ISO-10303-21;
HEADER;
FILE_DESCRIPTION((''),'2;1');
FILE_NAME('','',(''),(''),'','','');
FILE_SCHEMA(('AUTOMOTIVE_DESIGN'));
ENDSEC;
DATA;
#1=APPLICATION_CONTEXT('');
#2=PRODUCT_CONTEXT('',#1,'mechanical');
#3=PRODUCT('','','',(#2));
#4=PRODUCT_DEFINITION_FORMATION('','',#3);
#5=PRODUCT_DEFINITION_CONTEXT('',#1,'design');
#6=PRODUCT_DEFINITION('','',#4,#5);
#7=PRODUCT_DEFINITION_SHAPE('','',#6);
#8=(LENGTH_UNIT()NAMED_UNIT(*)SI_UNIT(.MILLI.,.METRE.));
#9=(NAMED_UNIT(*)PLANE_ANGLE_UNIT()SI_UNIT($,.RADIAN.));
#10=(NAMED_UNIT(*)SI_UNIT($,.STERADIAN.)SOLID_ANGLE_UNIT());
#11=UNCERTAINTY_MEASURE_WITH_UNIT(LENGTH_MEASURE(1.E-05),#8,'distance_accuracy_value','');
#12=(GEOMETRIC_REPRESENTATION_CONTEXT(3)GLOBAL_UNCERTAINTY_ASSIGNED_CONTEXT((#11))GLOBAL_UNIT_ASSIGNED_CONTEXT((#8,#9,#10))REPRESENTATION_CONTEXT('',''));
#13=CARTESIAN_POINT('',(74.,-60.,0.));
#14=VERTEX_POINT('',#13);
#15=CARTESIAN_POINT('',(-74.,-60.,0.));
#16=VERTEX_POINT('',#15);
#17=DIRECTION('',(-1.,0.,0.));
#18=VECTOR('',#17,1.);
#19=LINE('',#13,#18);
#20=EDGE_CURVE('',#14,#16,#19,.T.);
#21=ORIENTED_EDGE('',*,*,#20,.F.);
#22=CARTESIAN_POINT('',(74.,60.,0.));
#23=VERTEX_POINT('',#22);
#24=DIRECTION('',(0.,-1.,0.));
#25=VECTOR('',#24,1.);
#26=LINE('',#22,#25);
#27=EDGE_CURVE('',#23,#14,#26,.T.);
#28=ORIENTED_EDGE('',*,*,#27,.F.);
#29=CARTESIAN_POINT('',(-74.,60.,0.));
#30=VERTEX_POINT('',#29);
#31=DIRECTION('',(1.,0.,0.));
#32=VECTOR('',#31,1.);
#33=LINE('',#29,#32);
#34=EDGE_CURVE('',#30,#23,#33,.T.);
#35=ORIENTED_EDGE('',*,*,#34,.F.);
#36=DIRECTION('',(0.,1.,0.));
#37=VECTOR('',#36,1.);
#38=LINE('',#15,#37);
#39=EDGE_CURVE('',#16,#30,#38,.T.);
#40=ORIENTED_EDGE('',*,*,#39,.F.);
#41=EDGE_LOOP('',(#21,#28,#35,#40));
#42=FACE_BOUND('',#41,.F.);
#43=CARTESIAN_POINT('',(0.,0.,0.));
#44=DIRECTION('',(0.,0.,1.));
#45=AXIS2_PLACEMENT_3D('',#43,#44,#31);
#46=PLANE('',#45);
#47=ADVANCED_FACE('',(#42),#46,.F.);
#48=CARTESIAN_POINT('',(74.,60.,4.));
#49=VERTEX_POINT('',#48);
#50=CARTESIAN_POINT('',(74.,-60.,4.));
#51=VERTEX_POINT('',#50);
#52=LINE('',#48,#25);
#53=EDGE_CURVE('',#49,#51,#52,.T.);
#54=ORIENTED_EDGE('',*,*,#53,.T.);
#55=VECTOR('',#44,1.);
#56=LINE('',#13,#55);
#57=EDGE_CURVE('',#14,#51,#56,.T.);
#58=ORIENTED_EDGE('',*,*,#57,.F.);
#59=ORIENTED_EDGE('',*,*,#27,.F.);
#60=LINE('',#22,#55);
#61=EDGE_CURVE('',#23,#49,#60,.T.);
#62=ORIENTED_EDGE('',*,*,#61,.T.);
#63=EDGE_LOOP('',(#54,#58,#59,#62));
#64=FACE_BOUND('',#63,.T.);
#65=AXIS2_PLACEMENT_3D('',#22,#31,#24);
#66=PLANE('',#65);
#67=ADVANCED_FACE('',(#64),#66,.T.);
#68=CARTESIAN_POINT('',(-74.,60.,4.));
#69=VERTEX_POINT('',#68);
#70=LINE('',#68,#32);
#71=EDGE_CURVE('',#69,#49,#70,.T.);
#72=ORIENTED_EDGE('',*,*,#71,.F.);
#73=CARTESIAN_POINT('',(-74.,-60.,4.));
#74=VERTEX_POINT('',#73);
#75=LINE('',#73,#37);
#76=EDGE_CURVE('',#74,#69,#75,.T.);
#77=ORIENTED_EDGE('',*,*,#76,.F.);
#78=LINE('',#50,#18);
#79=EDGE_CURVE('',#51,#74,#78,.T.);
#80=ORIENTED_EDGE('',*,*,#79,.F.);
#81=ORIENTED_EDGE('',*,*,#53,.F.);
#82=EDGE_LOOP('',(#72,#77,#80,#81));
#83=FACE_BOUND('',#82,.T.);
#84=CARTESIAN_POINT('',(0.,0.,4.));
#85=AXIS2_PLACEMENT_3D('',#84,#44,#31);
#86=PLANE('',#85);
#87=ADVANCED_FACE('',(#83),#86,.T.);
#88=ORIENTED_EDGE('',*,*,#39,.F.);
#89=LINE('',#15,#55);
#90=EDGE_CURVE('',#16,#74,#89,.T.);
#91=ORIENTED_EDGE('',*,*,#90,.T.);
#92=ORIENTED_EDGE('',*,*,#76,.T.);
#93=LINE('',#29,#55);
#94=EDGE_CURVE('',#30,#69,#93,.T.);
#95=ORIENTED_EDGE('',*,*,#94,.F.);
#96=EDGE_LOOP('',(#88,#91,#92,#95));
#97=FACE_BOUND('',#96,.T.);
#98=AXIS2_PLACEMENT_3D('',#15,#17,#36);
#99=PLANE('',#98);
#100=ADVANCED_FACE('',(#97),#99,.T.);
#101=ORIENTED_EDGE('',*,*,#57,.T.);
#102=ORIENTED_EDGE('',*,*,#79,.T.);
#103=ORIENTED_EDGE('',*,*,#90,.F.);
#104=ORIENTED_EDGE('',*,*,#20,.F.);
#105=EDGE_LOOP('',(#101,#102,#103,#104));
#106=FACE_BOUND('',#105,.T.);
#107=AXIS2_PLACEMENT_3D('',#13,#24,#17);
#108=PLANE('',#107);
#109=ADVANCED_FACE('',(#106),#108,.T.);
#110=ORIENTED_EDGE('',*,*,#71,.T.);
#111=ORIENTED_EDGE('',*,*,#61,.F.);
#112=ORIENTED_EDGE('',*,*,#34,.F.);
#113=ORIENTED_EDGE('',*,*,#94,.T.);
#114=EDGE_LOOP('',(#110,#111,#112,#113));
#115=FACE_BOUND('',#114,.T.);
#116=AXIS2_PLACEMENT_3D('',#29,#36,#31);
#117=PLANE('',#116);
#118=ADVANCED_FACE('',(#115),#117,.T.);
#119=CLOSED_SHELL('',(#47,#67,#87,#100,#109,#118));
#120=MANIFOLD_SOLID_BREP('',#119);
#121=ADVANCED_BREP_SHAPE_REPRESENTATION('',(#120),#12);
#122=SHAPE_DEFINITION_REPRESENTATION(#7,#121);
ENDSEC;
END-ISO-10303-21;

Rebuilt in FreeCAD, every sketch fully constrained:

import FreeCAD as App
import Part
import Sketcher


def add_polygon(sketch, points):
    """Adds a closed chain of lines whose ends are joined by coincident constraints."""
    first, n = sketch.GeometryCount, len(points)
    for a, b in zip(points, points[1:] + points[:1]):
        sketch.addGeometry(Part.LineSegment(App.Vector(*a, 0), App.Vector(*b, 0)), False)
    for i in range(n):
        sketch.addConstraint(Sketcher.Constraint("Coincident", first + i, 2, first + (i + 1) % n, 1))

doc = App.newDocument("Part")
body = doc.addObject("PartDesign::Body", "Body")

sketch1 = body.newObject("Sketcher::SketchObject", "Sketch")
sketch1.AttachmentSupport = (doc.getObject("XY_Plane"), [""])
sketch1.MapMode = "FlatFace"
add_polygon(sketch1, [(74, 60), (-74, 60), (-74, -60), (74, -60)])
sketch1.addConstraint(Sketcher.Constraint("Horizontal", 0))
sketch1.addConstraint(Sketcher.Constraint("Vertical", 1))
sketch1.addConstraint(Sketcher.Constraint("Horizontal", 2))
sketch1.addConstraint(Sketcher.Constraint("Vertical", 3))
sketch1.addConstraint(Sketcher.Constraint("Symmetric", 0, 2, 2, 2, -1, 1))
sketch1.addConstraint(Sketcher.Constraint("DistanceX", 0, 2, 0, 1, 148.0))
sketch1.addConstraint(Sketcher.Constraint("DistanceY", 1, 2, 1, 1, 120.0))
pad1 = body.newObject("PartDesign::Pad", "Pad")
pad1.Profile = sketch1
pad1.Length = 4

doc.recompute()
